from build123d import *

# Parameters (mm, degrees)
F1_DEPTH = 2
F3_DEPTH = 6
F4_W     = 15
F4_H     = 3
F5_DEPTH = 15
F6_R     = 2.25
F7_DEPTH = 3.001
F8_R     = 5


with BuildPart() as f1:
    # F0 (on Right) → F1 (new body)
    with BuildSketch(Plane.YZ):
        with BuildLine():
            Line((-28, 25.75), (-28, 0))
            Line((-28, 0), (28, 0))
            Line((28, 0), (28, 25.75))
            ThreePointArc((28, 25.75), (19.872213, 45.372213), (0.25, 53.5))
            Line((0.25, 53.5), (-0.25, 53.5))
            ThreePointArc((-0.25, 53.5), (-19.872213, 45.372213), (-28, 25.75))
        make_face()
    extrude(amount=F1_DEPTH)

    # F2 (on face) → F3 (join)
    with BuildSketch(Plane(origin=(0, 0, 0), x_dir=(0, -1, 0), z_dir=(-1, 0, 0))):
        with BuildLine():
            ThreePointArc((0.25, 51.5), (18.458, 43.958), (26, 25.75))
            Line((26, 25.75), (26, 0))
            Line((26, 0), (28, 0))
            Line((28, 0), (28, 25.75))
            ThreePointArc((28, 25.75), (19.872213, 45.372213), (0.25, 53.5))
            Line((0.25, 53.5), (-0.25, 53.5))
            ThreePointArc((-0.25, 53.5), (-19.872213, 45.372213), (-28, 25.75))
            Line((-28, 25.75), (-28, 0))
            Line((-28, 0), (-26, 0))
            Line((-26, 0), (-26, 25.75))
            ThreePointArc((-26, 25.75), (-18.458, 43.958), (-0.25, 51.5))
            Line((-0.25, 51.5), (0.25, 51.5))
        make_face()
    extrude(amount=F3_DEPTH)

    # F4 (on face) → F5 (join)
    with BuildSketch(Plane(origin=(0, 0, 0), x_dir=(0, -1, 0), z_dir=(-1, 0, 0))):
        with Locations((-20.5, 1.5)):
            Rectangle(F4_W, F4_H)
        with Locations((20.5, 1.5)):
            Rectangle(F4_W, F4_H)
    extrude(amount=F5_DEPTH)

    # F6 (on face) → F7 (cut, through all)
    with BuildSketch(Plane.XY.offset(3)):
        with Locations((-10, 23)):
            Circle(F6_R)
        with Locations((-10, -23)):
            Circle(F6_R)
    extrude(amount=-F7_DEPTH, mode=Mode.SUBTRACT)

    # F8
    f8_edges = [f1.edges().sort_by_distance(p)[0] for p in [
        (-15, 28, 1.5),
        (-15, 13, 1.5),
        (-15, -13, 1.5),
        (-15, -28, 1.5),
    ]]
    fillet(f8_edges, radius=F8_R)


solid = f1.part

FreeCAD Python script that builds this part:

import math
import FreeCAD as App
import Part
import Sketcher


def edges_at(feature, points):
    """Names of the edges that pass closest to the given points."""
    edges = feature.Shape.Edges
    near = lambda p: min(range(len(edges)), key=lambda i: edges[i].distToShape(Part.Vertex(*p))[0])
    return sorted({f"Edge{near(p) + 1}" for p in points})


def add_polygon(sketch, points):
    """Adds a closed chain of lines whose ends are joined by coincident constraints."""
    first, n = sketch.GeometryCount, len(points)
    for a, b in zip(points, points[1:] + points[:1]):
        sketch.addGeometry(Part.LineSegment(App.Vector(*a, 0), App.Vector(*b, 0)), False)
    for i in range(n):
        sketch.addConstraint(Sketcher.Constraint("Coincident", first + i, 2, first + (i + 1) % n, 1))

doc = App.newDocument("Part")
body = doc.addObject("PartDesign::Body", "Body")

sketch1 = body.newObject("Sketcher::SketchObject", "Sketch")
sketch1.AttachmentSupport = (doc.getObject("YZ_Plane"), [""])
sketch1.MapMode = "FlatFace"
sketch1.addGeometry([
    Part.LineSegment(App.Vector(-28, 25.8, 0), App.Vector(-28, 0, 0)),
    Part.LineSegment(App.Vector(-28, 0, 0), App.Vector(28, 0, 0)),
    Part.LineSegment(App.Vector(28, 0, 0), App.Vector(28, 25.8, 0)),
    Part.ArcOfCircle(Part.Circle(App.Vector(0.2, 25.7, 0), App.Vector(0, 0, 1), 27.8), math.radians(0), math.radians(90)),
    Part.LineSegment(App.Vector(0.2, 53.5, 0), App.Vector(-0.2, 53.5, 0)),
    Part.ArcOfCircle(Part.Circle(App.Vector(-0.2, 25.7, 0), App.Vector(0, 0, 1), 27.8), math.radians(90), math.radians(180)),
], False)
sketch1.addConstraint([
    Sketcher.Constraint("Coincident", 0, 2, 1, 1),
    Sketcher.Constraint("Coincident", 1, 2, 2, 1),
    Sketcher.Constraint("Tangent", 2, 2, 3, 1),
    Sketcher.Constraint("Tangent", 3, 2, 4, 1),
    Sketcher.Constraint("Tangent", 4, 2, 5, 1),
    Sketcher.Constraint("Tangent", 5, 2, 0, 1),
    Sketcher.Constraint("Vertical", 0),
    Sketcher.Constraint("Horizontal", 1),
    Sketcher.Constraint("Vertical", 2),
    Sketcher.Constraint("Horizontal", 4),
    Sketcher.Constraint("Equal", 3, 5),
    Sketcher.Constraint("Symmetric", 0, 2, 1, 2, -1, 1),
    Sketcher.Constraint("DistanceX", 1, 1, 1, 2, 56.0),
    Sketcher.Constraint("Radius", 3, 27.750001),
    Sketcher.Constraint("DistanceY", 0, 2, 0, 1, 25.75),
])
pad1 = body.newObject("PartDesign::Pad", "Pad")
pad1.Profile = sketch1
pad1.Length = 2

sketch2 = body.newObject("Sketcher::SketchObject", "Sketch001")
sketch2.AttachmentSupport = (doc.getObject("YZ_Plane"), [""])
sketch2.MapMode = "FlatFace"
sketch2.addGeometry([
    Part.ArcOfCircle(Part.Circle(App.Vector(-0.3, 25.8, 0), App.Vector(0, 0, 1), 25.7), math.radians(90), math.radians(180)),
    Part.LineSegment(App.Vector(-26, 25.8, 0), App.Vector(-26, 0, 0)),
    Part.LineSegment(App.Vector(-26, 0, 0), App.Vector(-28, 0, 0)),
    Part.LineSegment(App.Vector(-28, 0, 0), App.Vector(-28, 25.8, 0)),
    Part.ArcOfCircle(Part.Circle(App.Vector(-0.2, 25.7, 0), App.Vector(0, 0, 1), 27.8), math.radians(90), math.radians(180)),
    Part.LineSegment(App.Vector(-0.2, 53.5, 0), App.Vector(0.2, 53.5, 0)),
    Part.ArcOfCircle(Part.Circle(App.Vector(0.2, 25.7, 0), App.Vector(0, 0, 1), 27.8), math.radians(0), math.radians(90)),
    Part.LineSegment(App.Vector(28, 25.8, 0), App.Vector(28, 0, 0)),
    Part.LineSegment(App.Vector(28, 0, 0), App.Vector(26, 0, 0)),
    Part.LineSegment(App.Vector(26, 0, 0), App.Vector(26, 25.8, 0)),
    Part.ArcOfCircle(Part.Circle(App.Vector(0.3, 25.8, 0), App.Vector(0, 0, 1), 25.7), math.radians(0), math.radians(90)),
    Part.LineSegment(App.Vector(0.2, 51.5, 0), App.Vector(-0.2, 51.5, 0)),
], False)
sketch2.addConstraint([
    Sketcher.Constraint("Tangent", 0, 2, 1, 1),
    Sketcher.Constraint("Coincident", 1, 2, 2, 1),
    Sketcher.Constraint("Coincident", 2, 2, 3, 1),
    Sketcher.Constraint("Tangent", 3, 2, 4, 2),
    Sketcher.Constraint("Tangent", 4, 1, 5, 1),
    Sketcher.Constraint("Tangent", 5, 2, 6, 2),
    Sketcher.Constraint("Tangent", 6, 1, 7, 1),
    Sketcher.Constraint("Coincident", 7, 2, 8, 1),
    Sketcher.Constraint("Coincident", 8, 2, 9, 1),
    Sketcher.Constraint("Tangent", 9, 2, 10, 1),
    Sketcher.Constraint("Tangent", 10, 2, 11, 1),
    Sketcher.Constraint("Tangent", 11, 2, 0, 1),
    Sketcher.Constraint("Vertical", 1),
    Sketcher.Constraint("Horizontal", 2),
    Sketcher.Constraint("Vertical", 3),
    Sketcher.Constraint("Horizontal", 5),
    Sketcher.Constraint("Vertical", 7),
    Sketcher.Constraint("Horizontal", 8),
    Sketcher.Constraint("Vertical", 9),
    Sketcher.Constraint("Horizontal", 11),
    Sketcher.Constraint("Coincident", 4, 3, 0, 3),
    Sketcher.Constraint("Coincident", 10, 3, 6, 3),
    Sketcher.Constraint("Equal", 4, 6),
    Sketcher.Constraint("Symmetric", 2, 2, 7, 2, -1, 1),
    Sketcher.Constraint("PointOnObject", 1, 2, -1),
    Sketcher.Constraint("DistanceX", 2, 2, 2, 1, 2.0),
    Sketcher.Constraint("Radius", 0, 25.749999),
    Sketcher.Constraint("DistanceX", 5, 1, 5, 2, 0.5),
    Sketcher.Constraint("DistanceY", 1, 2, 1, 1, 25.75),
])
pad2 = body.newObject("PartDesign::Pad", "Pad001")
pad2.Profile = sketch2
pad2.Length = 6
pad2.Reversed = True

sketch3 = body.newObject("Sketcher::SketchObject", "Sketch002")
sketch3.AttachmentSupport = (doc.getObject("YZ_Plane"), [""])
sketch3.MapMode = "FlatFace"
add_polygon(sketch3, [(28, 3), (28, 0), (13, 0), (13, 3)])
add_polygon(sketch3, [(-13, 3), (-13, 0), (-28, 0), (-28, 3)])
sketch3.addConstraint([
    Sketcher.Constraint("Vertical", 0),
    Sketcher.Constraint("Horizontal", 1),
    Sketcher.Constraint("Vertical", 2),
    Sketcher.Constraint("Horizontal", 3),
    Sketcher.Constraint("Vertical", 4),
    Sketcher.Constraint("Horizontal", 5),
    Sketcher.Constraint("Vertical", 6),
    Sketcher.Constraint("Horizontal", 7),
    Sketcher.Constraint("Symmetric", 1, 2, 4, 2, -1, 1),
    Sketcher.Constraint("Symmetric", 0, 2, 5, 2, -2),
    Sketcher.Constraint("Horizontal", 3, 2, 6, 2),
    Sketcher.Constraint("DistanceX", 1, 2, 1, 1, 15.0),
    Sketcher.Constraint("DistanceY", 0, 2, 0, 1, 3.0),
    Sketcher.Constraint("DistanceX", -1, 1, 0, 2, 28.0),
])
pad3 = body.newObject("PartDesign::Pad", "Pad002")
pad3.Profile = sketch3
pad3.Length = 15
pad3.Reversed = True

sketch4 = body.newObject("Sketcher::SketchObject", "Sketch003")
sketch4.AttachmentSupport = (doc.getObject("XY_Plane"), [""])
sketch4.MapMode = "FlatFace"
sketch4.AttachmentOffset = App.Placement(App.Vector(0, 0, 3), App.Rotation())
sketch4.addGeometry([
    Part.Circle(App.Vector(-10, 23, 0), App.Vector(0, 0, 1), 2.2),
    Part.Circle(App.Vector(-10, -23, 0), App.Vector(0, 0, 1), 2.2),
], False)
sketch4.addConstraint([
    Sketcher.Constraint("Equal", 0, 1),
    Sketcher.Constraint("Symmetric", 0, 3, 1, 3, -1),
    Sketcher.Constraint("Diameter", 0, 4.5),
    Sketcher.Constraint("DistanceX", 0, 3, -1, 1, 10.0),
    Sketcher.Constraint("DistanceY", -1, 1, 0, 3, 23.0),
])
pocket1 = body.newObject("PartDesign::Pocket", "Pocket")
pocket1.Profile = sketch4
pocket1.Type = "ThroughAll"
doc.recompute()

fillet = body.newObject("PartDesign::Fillet", "Fillet")
fillet.Base = (pocket1, edges_at(pocket1, [
    (-15, 28, 1.5),
    (-15, 13, 1.5),
    (-15, -13, 1.5),
    (-15, -28, 1.5),
]))
fillet.Radius = 5

doc.recompute()
